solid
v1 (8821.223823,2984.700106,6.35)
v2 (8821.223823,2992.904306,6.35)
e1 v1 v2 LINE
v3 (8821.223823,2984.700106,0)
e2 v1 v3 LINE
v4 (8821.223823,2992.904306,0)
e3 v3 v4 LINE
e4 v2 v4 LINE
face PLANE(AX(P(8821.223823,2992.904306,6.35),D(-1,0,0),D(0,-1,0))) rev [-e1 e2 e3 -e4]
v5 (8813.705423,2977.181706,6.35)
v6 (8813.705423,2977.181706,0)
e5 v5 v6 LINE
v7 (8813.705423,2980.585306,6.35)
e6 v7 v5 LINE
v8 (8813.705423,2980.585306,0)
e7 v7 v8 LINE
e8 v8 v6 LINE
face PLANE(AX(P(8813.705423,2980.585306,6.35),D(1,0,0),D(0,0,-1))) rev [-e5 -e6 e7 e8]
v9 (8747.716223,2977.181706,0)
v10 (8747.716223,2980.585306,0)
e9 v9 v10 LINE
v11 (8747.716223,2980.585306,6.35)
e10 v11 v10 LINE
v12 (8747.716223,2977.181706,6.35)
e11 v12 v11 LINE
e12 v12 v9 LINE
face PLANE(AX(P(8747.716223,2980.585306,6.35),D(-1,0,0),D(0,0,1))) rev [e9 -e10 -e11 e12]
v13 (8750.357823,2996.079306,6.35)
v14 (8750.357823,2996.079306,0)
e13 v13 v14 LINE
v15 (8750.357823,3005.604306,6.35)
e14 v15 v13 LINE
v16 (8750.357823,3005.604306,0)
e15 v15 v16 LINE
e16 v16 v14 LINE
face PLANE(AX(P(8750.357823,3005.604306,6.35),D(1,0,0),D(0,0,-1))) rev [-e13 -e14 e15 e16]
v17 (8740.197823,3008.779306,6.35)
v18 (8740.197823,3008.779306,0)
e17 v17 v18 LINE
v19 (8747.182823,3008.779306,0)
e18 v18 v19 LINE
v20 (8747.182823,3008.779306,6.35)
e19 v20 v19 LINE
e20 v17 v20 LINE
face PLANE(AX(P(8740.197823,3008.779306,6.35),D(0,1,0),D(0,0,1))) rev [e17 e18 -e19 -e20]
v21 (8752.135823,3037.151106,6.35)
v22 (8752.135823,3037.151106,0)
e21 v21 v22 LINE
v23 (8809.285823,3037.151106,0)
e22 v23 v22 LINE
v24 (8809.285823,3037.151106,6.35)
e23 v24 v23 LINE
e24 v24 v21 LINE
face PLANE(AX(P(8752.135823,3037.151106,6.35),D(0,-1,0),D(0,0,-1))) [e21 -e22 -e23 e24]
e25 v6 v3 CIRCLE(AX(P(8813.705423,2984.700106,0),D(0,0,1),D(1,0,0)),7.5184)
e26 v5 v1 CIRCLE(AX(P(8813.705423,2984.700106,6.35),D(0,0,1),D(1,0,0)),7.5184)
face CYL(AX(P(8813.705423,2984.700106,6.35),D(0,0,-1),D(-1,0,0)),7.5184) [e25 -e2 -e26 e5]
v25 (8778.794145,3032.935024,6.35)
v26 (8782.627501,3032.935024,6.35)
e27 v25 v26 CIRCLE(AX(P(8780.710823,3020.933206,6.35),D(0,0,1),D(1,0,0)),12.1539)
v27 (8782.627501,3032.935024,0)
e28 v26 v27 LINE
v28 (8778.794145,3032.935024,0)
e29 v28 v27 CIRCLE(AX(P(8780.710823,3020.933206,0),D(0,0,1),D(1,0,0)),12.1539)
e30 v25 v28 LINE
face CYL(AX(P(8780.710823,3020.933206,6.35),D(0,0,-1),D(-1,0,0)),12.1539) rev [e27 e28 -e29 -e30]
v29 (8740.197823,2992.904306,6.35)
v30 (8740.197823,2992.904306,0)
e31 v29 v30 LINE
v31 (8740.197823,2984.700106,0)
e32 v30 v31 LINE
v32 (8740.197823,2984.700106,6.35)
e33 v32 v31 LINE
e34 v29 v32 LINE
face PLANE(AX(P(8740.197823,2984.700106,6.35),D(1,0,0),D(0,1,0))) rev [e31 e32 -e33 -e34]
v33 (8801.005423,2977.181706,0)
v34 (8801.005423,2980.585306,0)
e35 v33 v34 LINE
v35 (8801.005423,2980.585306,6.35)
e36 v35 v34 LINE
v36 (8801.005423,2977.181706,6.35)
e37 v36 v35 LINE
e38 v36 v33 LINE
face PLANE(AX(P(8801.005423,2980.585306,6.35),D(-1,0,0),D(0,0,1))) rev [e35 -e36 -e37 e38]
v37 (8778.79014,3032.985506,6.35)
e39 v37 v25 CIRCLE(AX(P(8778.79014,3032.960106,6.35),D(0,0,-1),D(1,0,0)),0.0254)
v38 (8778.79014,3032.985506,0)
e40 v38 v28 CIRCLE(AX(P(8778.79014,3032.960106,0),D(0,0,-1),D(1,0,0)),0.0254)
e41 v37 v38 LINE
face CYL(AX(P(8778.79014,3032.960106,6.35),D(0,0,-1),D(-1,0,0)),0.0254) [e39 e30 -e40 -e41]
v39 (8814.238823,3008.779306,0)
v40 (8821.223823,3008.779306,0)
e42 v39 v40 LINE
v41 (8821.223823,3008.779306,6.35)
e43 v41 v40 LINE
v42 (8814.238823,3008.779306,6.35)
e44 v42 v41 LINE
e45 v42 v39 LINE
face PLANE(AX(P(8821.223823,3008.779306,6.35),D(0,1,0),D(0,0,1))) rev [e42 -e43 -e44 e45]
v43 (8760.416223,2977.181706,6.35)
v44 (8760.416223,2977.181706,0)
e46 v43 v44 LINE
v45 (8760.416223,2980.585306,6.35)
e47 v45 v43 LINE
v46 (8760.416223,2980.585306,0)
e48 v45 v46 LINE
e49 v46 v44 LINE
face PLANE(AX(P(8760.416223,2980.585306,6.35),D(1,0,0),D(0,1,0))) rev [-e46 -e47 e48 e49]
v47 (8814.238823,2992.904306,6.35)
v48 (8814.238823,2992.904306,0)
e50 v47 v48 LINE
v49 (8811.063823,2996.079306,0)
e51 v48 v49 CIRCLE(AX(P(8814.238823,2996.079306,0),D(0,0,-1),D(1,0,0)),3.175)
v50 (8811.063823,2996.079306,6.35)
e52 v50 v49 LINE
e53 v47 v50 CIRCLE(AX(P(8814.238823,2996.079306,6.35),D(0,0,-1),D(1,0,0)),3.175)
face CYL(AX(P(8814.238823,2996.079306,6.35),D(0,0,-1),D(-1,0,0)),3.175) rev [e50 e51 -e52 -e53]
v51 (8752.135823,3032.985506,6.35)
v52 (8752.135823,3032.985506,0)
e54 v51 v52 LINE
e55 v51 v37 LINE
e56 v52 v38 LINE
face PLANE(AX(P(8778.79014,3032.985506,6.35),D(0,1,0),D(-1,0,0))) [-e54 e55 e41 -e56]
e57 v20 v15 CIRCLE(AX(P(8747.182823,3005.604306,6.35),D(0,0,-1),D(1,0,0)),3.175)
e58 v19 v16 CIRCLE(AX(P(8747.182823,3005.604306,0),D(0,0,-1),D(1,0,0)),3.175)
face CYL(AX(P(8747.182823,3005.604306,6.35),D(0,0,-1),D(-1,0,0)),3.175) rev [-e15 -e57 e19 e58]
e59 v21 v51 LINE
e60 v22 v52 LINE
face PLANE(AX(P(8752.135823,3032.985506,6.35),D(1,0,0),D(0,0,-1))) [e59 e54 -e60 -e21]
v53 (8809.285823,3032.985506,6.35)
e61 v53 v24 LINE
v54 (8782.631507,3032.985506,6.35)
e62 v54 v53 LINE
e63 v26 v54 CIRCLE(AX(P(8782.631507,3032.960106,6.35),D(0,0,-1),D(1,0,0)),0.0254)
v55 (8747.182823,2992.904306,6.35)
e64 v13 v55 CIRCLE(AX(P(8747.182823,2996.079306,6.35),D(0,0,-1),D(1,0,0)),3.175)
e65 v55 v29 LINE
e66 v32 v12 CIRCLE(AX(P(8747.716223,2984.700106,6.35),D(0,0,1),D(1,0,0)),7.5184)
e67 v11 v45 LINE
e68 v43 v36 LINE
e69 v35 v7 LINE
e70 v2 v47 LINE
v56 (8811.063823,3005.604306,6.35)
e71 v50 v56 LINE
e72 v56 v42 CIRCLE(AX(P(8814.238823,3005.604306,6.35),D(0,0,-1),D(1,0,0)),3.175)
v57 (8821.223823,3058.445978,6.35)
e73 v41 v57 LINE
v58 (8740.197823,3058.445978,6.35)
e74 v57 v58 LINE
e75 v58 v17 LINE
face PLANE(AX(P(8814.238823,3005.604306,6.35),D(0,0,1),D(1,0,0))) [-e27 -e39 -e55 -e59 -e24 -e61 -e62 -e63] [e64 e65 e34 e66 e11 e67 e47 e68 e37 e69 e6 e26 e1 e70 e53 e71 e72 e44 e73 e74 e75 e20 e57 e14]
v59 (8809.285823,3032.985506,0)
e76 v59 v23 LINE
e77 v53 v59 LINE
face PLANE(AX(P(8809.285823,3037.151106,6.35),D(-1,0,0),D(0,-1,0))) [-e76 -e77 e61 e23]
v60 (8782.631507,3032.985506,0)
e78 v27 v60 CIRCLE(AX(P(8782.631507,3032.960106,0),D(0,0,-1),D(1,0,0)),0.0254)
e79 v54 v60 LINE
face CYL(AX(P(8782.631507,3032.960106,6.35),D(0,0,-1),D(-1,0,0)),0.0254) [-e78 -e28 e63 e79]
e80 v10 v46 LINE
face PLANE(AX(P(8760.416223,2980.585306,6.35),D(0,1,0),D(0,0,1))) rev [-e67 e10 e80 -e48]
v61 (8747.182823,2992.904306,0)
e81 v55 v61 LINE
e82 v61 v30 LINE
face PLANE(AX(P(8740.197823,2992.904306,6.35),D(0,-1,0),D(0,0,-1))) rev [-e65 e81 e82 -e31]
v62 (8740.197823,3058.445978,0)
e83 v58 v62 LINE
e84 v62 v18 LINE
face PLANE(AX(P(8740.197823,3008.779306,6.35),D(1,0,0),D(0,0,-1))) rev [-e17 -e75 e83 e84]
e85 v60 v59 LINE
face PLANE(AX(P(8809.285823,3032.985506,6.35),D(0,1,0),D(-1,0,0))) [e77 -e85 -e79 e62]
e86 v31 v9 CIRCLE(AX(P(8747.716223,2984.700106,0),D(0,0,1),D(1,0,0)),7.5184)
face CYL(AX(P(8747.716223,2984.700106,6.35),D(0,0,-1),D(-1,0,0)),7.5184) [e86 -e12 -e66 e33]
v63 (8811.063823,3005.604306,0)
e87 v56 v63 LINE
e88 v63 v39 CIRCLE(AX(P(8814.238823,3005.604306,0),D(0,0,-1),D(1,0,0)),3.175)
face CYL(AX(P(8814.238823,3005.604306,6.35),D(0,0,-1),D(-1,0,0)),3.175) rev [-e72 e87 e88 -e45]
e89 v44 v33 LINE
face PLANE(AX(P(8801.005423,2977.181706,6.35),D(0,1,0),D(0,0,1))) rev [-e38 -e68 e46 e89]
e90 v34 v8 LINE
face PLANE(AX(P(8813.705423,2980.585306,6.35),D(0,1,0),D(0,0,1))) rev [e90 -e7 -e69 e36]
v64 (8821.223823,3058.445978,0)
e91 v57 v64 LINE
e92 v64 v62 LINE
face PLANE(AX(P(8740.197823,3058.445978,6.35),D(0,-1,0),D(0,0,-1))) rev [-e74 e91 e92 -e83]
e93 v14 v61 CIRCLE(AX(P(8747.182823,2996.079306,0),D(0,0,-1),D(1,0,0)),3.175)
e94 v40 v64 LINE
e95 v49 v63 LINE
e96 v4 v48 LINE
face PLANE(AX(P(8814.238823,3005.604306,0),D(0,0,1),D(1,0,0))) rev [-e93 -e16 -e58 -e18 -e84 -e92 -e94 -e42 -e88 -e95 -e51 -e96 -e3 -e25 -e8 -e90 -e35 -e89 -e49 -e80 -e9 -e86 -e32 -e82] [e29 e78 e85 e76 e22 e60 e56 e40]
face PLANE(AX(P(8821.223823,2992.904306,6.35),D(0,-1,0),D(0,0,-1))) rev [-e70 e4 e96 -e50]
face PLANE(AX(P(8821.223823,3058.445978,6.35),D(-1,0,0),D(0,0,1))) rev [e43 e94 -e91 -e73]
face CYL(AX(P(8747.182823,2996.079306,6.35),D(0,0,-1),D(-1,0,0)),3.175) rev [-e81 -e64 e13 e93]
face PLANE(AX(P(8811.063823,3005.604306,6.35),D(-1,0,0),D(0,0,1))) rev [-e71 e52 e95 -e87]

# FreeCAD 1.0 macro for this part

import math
import FreeCAD as App
import Part
import Sketcher
from FreeCAD import Vector
Q = App.Units.Quantity

doc = App.newDocument("Part")
params = doc.addObject("Spreadsheet::Sheet", "Params")
for row, (alias, value) in enumerate([
    ("sketch1_width", "0.5 in"),
    ("sketch1_radius", "0.125 in"),
    ("sketch1_radius2", "0.296 in"),
    ("sketch1_radius3", "0.001 in"),
    ("sketch1_width2", "3.19 in"),
    ("pad1_length", "0.25 in"),
], start=1):
    params.set(f"A{row}", alias)
    params.set(f"B{row}", "=" + value)
    params.setAlias(f"B{row}", alias)

body = doc.addObject("PartDesign::Body", "Body")

# Sketch on XY plane
sketch1 = body.newObject("Sketcher::SketchObject", "Sketch")
sketch1.AttachmentSupport = (doc.getObject("XY_Plane"), [""])
sketch1.MapMode = "FlatFace"
sketch1.addGeometry([
    Part.LineSegment(Vector(8821.224, 3008.779, 0), Vector(8821.224, 3058.446, 0)),  # 0
    Part.LineSegment(Vector(8821.224, 3058.446, 0), Vector(8740.198, 3058.446, 0)),  # 1
    Part.LineSegment(Vector(8740.198, 3058.446, 0), Vector(8740.198, 3008.779, 0)),  # 2
    Part.LineSegment(Vector(8740.198, 3008.779, 0), Vector(8747.183, 3008.779, 0)),  # 3
    Part.ArcOfCircle(Part.Circle(Vector(8747.183, 3005.604, 0), Vector(0, 0, 1), 3.175), math.radians(0), math.radians(90)),  # 4
    Part.LineSegment(Vector(8750.358, 3005.604, 0), Vector(8750.358, 2996.079, 0)),  # 5
    Part.ArcOfCircle(Part.Circle(Vector(8747.183, 2996.079, 0), Vector(0, 0, 1), 3.175), math.radians(-90), math.radians(0)),  # 6
    Part.LineSegment(Vector(8747.183, 2992.904, 0), Vector(8740.198, 2992.904, 0)),  # 7
    Part.LineSegment(Vector(8740.198, 2992.904, 0), Vector(8740.198, 2984.7, 0)),  # 8
    Part.ArcOfCircle(Part.Circle(Vector(8747.716, 2984.7, 0), Vector(0, 0, 1), 7.518), math.radians(-180), math.radians(-90)),  # 9
    Part.LineSegment(Vector(8747.716, 2977.182, 0), Vector(8747.716, 2980.585, 0)),  # 10
    Part.LineSegment(Vector(8747.716, 2980.585, 0), Vector(8760.416, 2980.585, 0)),  # 11
    Part.LineSegment(Vector(8760.416, 2980.585, 0), Vector(8760.416, 2977.182, 0)),  # 12
    Part.LineSegment(Vector(8760.416, 2977.182, 0), Vector(8801.005, 2977.182, 0)),  # 13
    Part.LineSegment(Vector(8801.005, 2977.182, 0), Vector(8801.005, 2980.585, 0)),  # 14
    Part.LineSegment(Vector(8801.005, 2980.585, 0), Vector(8813.705, 2980.585, 0)),  # 15
    Part.LineSegment(Vector(8813.705, 2980.585, 0), Vector(8813.705, 2977.182, 0)),  # 16
    Part.ArcOfCircle(Part.Circle(Vector(8813.705, 2984.7, 0), Vector(0, 0, 1), 7.518), math.radians(-90), math.radians(0)),  # 17
    Part.LineSegment(Vector(8821.224, 2984.7, 0), Vector(8821.224, 2992.904, 0)),  # 18
    Part.LineSegment(Vector(8821.224, 2992.904, 0), Vector(8814.239, 2992.904, 0)),  # 19
    Part.ArcOfCircle(Part.Circle(Vector(8814.239, 2996.079, 0), Vector(0, 0, 1), 3.175), math.radians(-180), math.radians(-90)),  # 20
    Part.LineSegment(Vector(8811.064, 2996.079, 0), Vector(8811.064, 3005.604, 0)),  # 21
    Part.ArcOfCircle(Part.Circle(Vector(8814.239, 3005.604, 0), Vector(0, 0, 1), 3.175), math.radians(90), math.radians(180)),  # 22
    Part.LineSegment(Vector(8814.239, 3008.779, 0), Vector(8821.224, 3008.779, 0)),  # 23
    Part.LineSegment(Vector(8809.286, 3037.151, 0), Vector(8809.286, 3032.986, 0)),  # 24
    Part.LineSegment(Vector(8809.286, 3032.986, 0), Vector(8782.632, 3032.986, 0)),  # 25
    Part.ArcOfCircle(Part.Circle(Vector(8782.632, 3032.96, 0), Vector(0, 0, 1), 0.025), math.radians(90), math.radians(261)),  # 26
    Part.ArcOfCircle(Part.Circle(Vector(8780.711, 3020.933, 0), Vector(0, 0, 1), 12.154), math.radians(99), math.radians(441)),  # 27
    Part.ArcOfCircle(Part.Circle(Vector(8778.79, 3032.96, 0), Vector(0, 0, 1), 0.025), math.radians(-81), math.radians(90)),  # 28
    Part.LineSegment(Vector(8778.79, 3032.986, 0), Vector(8752.136, 3032.986, 0)),  # 29
    Part.LineSegment(Vector(8752.136, 3032.986, 0), Vector(8752.136, 3037.151, 0)),  # 30
    Part.LineSegment(Vector(8752.136, 3037.151, 0), Vector(8809.286, 3037.151, 0)),  # 31
], False)
sketch1.addConstraint([
    Sketcher.Constraint("Coincident", 0, 2, 1, 1),
    Sketcher.Constraint("Coincident", 1, 2, 2, 1),
    Sketcher.Constraint("Coincident", 2, 2, 3, 1),
    Sketcher.Constraint("Tangent", 3, 2, 4, 2),
    Sketcher.Constraint("Tangent", 4, 1, 5, 1),
    Sketcher.Constraint("Tangent", 5, 2, 6, 2),
    Sketcher.Constraint("Tangent", 6, 1, 7, 1),
    Sketcher.Constraint("Coincident", 7, 2, 8, 1),
    Sketcher.Constraint("Tangent", 8, 2, 9, 1),
    Sketcher.Constraint("Coincident", 9, 2, 10, 1),
    Sketcher.Constraint("Coincident", 10, 2, 11, 1),
    Sketcher.Constraint("Coincident", 11, 2, 12, 1),
    Sketcher.Constraint("Coincident", 12, 2, 13, 1),
    Sketcher.Constraint("Coincident", 13, 2, 14, 1),
    Sketcher.Constraint("Coincident", 14, 2, 15, 1),
    Sketcher.Constraint("Coincident", 15, 2, 16, 1),
    Sketcher.Constraint("Coincident", 16, 2, 17, 1),
    Sketcher.Constraint("Tangent", 17, 2, 18, 1),
    Sketcher.Constraint("Coincident", 18, 2, 19, 1),
    Sketcher.Constraint("Tangent", 19, 2, 20, 2),
    Sketcher.Constraint("Tangent", 20, 1, 21, 1),
    Sketcher.Constraint("Tangent", 21, 2, 22, 2),
    Sketcher.Constraint("Tangent", 22, 1, 23, 1),
    Sketcher.Constraint("Coincident", 23, 2, 0, 1),
    Sketcher.Constraint("Coincident", 24, 2, 25, 1),
    Sketcher.Constraint("Tangent", 25, 2, 26, 1),
    Sketcher.Constraint("Tangent", 26, 2, 27, 2),
    Sketcher.Constraint("Tangent", 27, 1, 28, 1),
    Sketcher.Constraint("Tangent", 28, 2, 29, 1),
    Sketcher.Constraint("Coincident", 29, 2, 30, 1),
    Sketcher.Constraint("Coincident", 30, 2, 31, 1),
    Sketcher.Constraint("Coincident", 31, 2, 24, 1),
    Sketcher.Constraint("Vertical", 0),
    Sketcher.Constraint("Horizontal", 1),
    Sketcher.Constraint("Vertical", 2),
    Sketcher.Constraint("Horizontal", 3),
    Sketcher.Constraint("Vertical", 5),
    Sketcher.Constraint("Horizontal", 7),
    Sketcher.Constraint("Vertical", 8),
    Sketcher.Constraint("Vertical", 10),
    Sketcher.Constraint("Horizontal", 11),
    Sketcher.Constraint("Vertical", 12),
    Sketcher.Constraint("Horizontal", 13),
    Sketcher.Constraint("Vertical", 14),
    Sketcher.Constraint("Horizontal", 15),
    Sketcher.Constraint("Vertical", 16),
    Sketcher.Constraint("Vertical", 18),
    Sketcher.Constraint("Horizontal", 19),
    Sketcher.Constraint("Vertical", 21),
    Sketcher.Constraint("Horizontal", 23),
    Sketcher.Constraint("Vertical", 24),
    Sketcher.Constraint("Horizontal", 25),
    Sketcher.Constraint("Horizontal", 29),
    Sketcher.Constraint("Vertical", 30),
    Sketcher.Constraint("Horizontal", 31),
    Sketcher.Constraint("Equal", 4, 6),
    Sketcher.Constraint("Equal", 9, 17),
    Sketcher.Constraint("Equal", 6, 20),
    Sketcher.Constraint("Equal", 20, 22),
    Sketcher.Constraint("Equal", 26, 28),
    Sketcher.Constraint("Horizontal", 9, 3, 17, 3),
    Sketcher.Constraint("Horizontal", 6, 3, 20, 3),
    Sketcher.Constraint("Horizontal", 4, 3, 22, 3),
    Sketcher.Constraint("Horizontal", 26, 3, 28, 3),
    Sketcher.Constraint("Horizontal", 9, 2, 12, 2),
    Sketcher.Constraint("Horizontal", 11, 2, 14, 2),
    Sketcher.Constraint("Vertical", 2, 2, 7, 2),
    Sketcher.Constraint("Vertical", 17, 3, 15, 2),
    Sketcher.Constraint("Vertical", 0, 2, 17, 2),
    Sketcher.Constraint("Equal", 11, 15),
    Sketcher.Constraint("Equal", 7, 19),
    Sketcher.Constraint("Equal", 25, 29),
    Sketcher.Constraint("DistanceX", 11, 1, 11, 2, Q("0.5 in")),
    Sketcher.Constraint("Radius", 4, Q("0.125 in")),
    Sketcher.Constraint("Radius", 9, Q("0.296 in")),
    Sketcher.Constraint("Radius", 26, Q("0.001 in")),
    Sketcher.Constraint("DistanceX", 1, 2, 1, 1, Q("3.19 in")),
    Sketcher.Constraint("DistanceX", 31, 1, 31, 2, Q("2.25 in")),
    Sketcher.Constraint("Radius", 27, Q("0.4785 in")),
    Sketcher.Constraint("DistanceY", 17, 3, 26, 3, Q("1.9 in")),
    Sketcher.Constraint("DistanceY", 6, 3, 2, 2, Q("0.5 in")),
    Sketcher.Constraint("DistanceX", 2, 2, 4, 1, Q("0.4 in")),
    Sketcher.Constraint("DistanceX", 9, 3, 11, 2, Q("0.5 in")),
    Sketcher.Constraint("DistanceY", 8, 2, 8, 1, Q("0.323 in")),
    Sketcher.Constraint("DistanceY", 10, 1, 10, 2, Q("0.134 in")),
    Sketcher.Constraint("DistanceY", 24, 2, 24, 1, Q("0.164 in")),
    Sketcher.Constraint("DistanceX", 27, 3, 22, 3, Q("1.32 in")),
    Sketcher.Constraint("DistanceY", 27, 3, 26, 3, Q("0.4735 in")),
    Sketcher.Constraint("DistanceX", -1, 1, 26, 2, Q("8782.627501 mm")),
    Sketcher.Constraint("DistanceY", 0, 1, 0, 2, Q("49.666672 mm")),
    Sketcher.Constraint("DistanceY", -1, 1, 4, 3, Q("3005.604306 mm")),
])
sketch1.setExpression("Constraints[72]", "Params.sketch1_width")
sketch1.setExpression("Constraints[73]", "Params.sketch1_radius")
sketch1.setExpression("Constraints[74]", "Params.sketch1_radius2")
sketch1.setExpression("Constraints[75]", "Params.sketch1_radius3")
sketch1.setExpression("Constraints[76]", "Params.sketch1_width2")
pad1 = body.newObject("PartDesign::Pad", "Pad")
pad1.Profile = sketch1
pad1.setExpression("Length", "Params.pad1_length")

doc.recompute()
